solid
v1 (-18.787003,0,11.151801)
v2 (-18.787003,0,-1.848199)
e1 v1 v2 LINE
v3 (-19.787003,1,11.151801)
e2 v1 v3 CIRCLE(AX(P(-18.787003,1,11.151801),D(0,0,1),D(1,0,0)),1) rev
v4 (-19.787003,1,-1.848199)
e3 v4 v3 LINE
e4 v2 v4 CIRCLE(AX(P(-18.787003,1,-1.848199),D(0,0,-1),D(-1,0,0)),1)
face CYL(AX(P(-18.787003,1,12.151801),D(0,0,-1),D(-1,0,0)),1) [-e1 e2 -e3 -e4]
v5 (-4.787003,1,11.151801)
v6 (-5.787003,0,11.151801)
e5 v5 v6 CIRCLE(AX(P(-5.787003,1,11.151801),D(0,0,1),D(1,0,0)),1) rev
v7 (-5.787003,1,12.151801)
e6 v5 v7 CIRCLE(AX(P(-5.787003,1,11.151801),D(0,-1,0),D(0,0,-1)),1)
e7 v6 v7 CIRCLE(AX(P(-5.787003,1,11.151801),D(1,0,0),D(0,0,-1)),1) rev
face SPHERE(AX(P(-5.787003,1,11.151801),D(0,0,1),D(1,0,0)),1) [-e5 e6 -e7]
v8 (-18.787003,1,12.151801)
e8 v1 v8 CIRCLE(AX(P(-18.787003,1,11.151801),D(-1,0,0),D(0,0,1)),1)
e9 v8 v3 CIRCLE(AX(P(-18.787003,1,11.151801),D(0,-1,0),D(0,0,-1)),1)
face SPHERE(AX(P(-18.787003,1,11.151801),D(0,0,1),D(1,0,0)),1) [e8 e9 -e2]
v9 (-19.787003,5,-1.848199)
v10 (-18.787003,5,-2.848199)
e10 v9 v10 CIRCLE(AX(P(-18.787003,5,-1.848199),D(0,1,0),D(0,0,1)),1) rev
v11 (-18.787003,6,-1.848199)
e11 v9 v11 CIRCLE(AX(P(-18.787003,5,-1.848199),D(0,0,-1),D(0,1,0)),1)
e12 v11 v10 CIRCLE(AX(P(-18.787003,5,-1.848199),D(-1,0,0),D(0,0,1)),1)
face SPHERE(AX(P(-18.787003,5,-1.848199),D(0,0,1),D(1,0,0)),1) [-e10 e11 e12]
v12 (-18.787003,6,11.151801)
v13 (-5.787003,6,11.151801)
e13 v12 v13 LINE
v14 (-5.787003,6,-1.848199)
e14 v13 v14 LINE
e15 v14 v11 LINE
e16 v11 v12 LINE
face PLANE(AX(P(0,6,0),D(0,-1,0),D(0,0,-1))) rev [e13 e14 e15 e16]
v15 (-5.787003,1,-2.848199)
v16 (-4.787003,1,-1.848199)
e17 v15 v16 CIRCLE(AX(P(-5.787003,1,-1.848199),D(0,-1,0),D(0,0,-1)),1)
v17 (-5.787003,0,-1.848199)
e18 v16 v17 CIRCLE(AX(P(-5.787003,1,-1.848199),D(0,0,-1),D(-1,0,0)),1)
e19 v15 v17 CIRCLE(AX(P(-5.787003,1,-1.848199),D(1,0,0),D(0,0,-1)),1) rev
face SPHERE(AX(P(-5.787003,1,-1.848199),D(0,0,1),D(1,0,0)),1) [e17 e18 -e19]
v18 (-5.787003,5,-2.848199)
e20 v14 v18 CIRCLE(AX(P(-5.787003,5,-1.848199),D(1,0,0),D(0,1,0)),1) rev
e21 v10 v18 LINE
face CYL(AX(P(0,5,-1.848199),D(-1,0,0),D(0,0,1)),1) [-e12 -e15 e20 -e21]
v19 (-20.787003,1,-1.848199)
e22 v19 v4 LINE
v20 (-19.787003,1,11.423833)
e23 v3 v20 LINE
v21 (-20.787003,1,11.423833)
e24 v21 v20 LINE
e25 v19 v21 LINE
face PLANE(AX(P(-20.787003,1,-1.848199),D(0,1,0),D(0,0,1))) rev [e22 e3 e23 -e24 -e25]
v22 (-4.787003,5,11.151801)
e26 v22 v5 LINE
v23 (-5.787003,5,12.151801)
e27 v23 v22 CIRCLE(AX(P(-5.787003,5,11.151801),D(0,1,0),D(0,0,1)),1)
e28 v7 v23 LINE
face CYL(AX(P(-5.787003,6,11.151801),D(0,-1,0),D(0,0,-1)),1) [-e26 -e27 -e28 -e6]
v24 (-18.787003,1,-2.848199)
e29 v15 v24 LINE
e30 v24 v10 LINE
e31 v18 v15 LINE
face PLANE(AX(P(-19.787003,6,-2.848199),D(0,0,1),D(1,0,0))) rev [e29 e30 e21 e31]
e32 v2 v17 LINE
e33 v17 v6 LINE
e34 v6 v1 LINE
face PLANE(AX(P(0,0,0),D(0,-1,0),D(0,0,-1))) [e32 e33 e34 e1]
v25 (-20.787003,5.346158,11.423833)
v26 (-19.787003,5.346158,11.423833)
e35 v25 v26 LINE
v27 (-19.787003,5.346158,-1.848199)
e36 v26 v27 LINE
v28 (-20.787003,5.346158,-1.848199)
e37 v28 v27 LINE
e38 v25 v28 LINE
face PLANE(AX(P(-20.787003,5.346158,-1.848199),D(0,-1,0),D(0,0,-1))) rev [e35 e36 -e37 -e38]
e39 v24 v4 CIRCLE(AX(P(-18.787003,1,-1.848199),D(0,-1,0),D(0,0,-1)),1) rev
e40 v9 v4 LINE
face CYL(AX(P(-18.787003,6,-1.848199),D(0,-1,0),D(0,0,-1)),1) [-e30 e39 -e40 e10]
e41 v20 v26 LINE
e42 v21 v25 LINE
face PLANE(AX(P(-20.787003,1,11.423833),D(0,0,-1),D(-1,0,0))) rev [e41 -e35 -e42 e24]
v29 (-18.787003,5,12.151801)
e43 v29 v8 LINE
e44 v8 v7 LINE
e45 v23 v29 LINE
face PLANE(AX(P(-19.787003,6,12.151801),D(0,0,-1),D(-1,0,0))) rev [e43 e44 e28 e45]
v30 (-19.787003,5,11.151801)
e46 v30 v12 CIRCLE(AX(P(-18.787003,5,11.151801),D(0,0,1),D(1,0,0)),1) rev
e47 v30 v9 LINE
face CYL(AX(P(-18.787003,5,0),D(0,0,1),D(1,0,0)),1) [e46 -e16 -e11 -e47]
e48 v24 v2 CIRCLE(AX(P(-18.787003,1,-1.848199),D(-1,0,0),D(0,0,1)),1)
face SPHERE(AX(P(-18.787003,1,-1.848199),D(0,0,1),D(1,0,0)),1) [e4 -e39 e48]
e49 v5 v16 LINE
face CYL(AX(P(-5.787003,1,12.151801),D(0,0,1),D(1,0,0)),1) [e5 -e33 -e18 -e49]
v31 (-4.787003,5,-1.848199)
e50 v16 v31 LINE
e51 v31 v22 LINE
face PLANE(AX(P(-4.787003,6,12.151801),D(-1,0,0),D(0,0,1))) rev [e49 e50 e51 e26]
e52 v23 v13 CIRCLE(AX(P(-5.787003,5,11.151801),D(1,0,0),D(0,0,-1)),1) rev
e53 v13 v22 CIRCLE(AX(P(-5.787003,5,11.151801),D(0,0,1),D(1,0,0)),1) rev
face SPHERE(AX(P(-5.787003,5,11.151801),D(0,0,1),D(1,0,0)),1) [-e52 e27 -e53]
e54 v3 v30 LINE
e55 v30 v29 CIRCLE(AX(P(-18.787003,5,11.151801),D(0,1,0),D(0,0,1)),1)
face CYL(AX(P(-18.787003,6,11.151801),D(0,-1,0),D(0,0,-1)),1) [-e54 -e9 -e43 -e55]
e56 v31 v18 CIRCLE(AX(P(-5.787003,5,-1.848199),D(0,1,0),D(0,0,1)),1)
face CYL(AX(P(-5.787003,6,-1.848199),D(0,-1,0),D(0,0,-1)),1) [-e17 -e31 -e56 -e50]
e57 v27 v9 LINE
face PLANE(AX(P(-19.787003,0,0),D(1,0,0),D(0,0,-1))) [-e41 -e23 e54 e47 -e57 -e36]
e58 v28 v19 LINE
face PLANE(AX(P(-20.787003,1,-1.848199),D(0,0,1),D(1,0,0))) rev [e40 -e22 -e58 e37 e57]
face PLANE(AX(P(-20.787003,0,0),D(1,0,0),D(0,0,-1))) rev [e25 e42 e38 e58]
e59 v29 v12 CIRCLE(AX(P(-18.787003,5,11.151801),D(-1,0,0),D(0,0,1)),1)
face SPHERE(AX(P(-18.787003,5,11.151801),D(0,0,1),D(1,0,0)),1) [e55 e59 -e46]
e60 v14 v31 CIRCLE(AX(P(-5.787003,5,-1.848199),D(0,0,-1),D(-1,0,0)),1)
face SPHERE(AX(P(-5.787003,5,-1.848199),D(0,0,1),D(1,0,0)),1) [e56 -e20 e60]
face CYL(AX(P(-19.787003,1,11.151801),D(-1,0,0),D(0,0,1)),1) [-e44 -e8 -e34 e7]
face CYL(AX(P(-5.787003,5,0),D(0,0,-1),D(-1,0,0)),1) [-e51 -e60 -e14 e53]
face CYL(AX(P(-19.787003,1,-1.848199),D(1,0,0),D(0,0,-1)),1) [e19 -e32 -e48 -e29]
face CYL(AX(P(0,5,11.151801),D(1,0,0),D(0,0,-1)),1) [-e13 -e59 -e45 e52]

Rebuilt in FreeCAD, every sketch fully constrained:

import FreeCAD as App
import Part
import Sketcher
from FreeCAD import Vector
Q = App.Units.Quantity

doc = App.newDocument("Part")
body = doc.addObject("PartDesign::Body", "Body")

# Sketch on XZ plane
sketch1 = body.newObject("Sketcher::SketchObject", "Sketch")
sketch1.AttachmentSupport = (doc.getObject("XZ_Plane"), [""])
sketch1.MapMode = "FlatFace"
sketch1.addGeometry([
    Part.LineSegment(Vector(-20, -3, 0), Vector(-20, 12, 0)),
    Part.LineSegment(Vector(-20, 12, 0), Vector(-5, 12, 0)),
    Part.LineSegment(Vector(-5, 12, 0), Vector(-5, -3, 0)),
    Part.LineSegment(Vector(-5, -3, 0), Vector(-20, -3, 0)),
], False)
sketch1.addConstraint([
    Sketcher.Constraint("Coincident", 0, 2, 1, 1),
    Sketcher.Constraint("Coincident", 1, 2, 2, 1),
    Sketcher.Constraint("Coincident", 2, 2, 3, 1),
    Sketcher.Constraint("Coincident", 3, 2, 0, 1),
    Sketcher.Constraint("Vertical", 0),
    Sketcher.Constraint("Horizontal", 1),
    Sketcher.Constraint("Vertical", 2),
    Sketcher.Constraint("Horizontal", 3),
    Sketcher.Constraint("Equal", 3, 0),
    Sketcher.Constraint("DistanceX", 1, 1, 1, 2, Q("15 mm")),
    Sketcher.Constraint("DistanceY", -1, 1, 0, 2, Q("12.151801 mm")),
    Sketcher.Constraint("DistanceX", 0, 2, -1, 1, Q("19.787003 mm")),
])
pad1 = body.newObject("PartDesign::Pad", "Pad")
pad1.Profile = sketch1
pad1.Length = 6
pad1.Reversed = True
doc.recompute()

fillet = body.newObject("PartDesign::Fillet", "Fillet")
fillet.Base = (pad1, ["Edge1"])
fillet.UseAllEdges = True
fillet.Radius = 1

# Sketch on YZ plane
sketch2 = body.newObject("Sketcher::SketchObject", "Sketch001")
sketch2.AttachmentSupport = (doc.getObject("YZ_Plane"), [""])
sketch2.MapMode = "FlatFace"
sketch2.AttachmentOffset = App.Placement(Vector(0, 0, -19.787003), App.Rotation())
sketch2.addGeometry([
    Part.LineSegment(Vector(5.3, -1.8, 0), Vector(1, -1.8, 0)),
    Part.LineSegment(Vector(1, -1.8, 0), Vector(1, 11.4, 0)),
    Part.LineSegment(Vector(1, 11.4, 0), Vector(5.3, 11.4, 0)),
    Part.LineSegment(Vector(5.3, 11.4, 0), Vector(5.3, -1.8, 0)),
], False)
sketch2.addConstraint([
    Sketcher.Constraint("Coincident", 0, 2, 1, 1),
    Sketcher.Constraint("Coincident", 1, 2, 2, 1),
    Sketcher.Constraint("Coincident", 2, 2, 3, 1),
    Sketcher.Constraint("Coincident", 3, 2, 0, 1),
    Sketcher.Constraint("Horizontal", 0),
    Sketcher.Constraint("Vertical", 1),
    Sketcher.Constraint("Horizontal", 2),
    Sketcher.Constraint("Vertical", 3),
    Sketcher.Constraint("DistanceX", -1, 1, 0, 2, Q("1 mm")),
    Sketcher.Constraint("DistanceY", 0, 2, -1, 1, Q("1.848199 mm")),
    Sketcher.Constraint("DistanceX", 0, 2, 0, 1, Q("4.346158 mm")),
    Sketcher.Constraint("DistanceY", 1, 1, 1, 2, Q("13.272033 mm")),
])
pad2 = body.newObject("PartDesign::Pad", "Pad001")
pad2.Profile = sketch2
pad2.Length = 1
pad2.Reversed = True

doc.recompute()
